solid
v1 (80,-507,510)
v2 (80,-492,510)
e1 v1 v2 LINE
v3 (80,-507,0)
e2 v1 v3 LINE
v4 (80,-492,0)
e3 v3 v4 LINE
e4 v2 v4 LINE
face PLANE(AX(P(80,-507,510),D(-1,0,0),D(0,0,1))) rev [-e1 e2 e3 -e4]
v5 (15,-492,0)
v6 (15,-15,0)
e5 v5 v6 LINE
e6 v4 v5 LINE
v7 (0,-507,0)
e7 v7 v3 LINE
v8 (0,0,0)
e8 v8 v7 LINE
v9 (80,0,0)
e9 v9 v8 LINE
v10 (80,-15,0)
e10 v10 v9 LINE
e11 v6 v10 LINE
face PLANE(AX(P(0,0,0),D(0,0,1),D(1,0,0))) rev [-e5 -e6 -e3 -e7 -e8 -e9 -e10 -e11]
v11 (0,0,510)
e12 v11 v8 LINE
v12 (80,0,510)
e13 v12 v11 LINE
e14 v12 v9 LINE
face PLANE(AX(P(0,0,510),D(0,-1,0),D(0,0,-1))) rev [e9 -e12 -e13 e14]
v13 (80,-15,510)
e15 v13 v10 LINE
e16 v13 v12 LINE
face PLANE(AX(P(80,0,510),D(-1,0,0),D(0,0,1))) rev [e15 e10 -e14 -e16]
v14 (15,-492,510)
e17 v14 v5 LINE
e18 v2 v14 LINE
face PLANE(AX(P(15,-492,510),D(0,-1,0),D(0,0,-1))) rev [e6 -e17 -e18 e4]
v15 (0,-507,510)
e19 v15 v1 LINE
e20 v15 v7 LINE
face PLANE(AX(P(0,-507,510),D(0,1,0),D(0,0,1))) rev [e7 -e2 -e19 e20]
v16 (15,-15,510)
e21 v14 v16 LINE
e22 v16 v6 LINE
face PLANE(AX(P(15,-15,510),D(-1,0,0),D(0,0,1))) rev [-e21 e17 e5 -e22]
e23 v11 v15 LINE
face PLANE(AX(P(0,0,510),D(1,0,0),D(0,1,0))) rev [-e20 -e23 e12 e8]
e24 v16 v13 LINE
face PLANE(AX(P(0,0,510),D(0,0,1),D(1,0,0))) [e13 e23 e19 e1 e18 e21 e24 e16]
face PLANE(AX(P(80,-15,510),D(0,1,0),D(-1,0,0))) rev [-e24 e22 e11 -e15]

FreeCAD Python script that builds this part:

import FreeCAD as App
import Part
import Sketcher

doc = App.newDocument("Part")
body = doc.addObject("PartDesign::Body", "Body")

sketch1 = body.newObject("Sketcher::SketchObject", "Sketch")
sketch1.AttachmentSupport = (doc.getObject("XY_Plane"), [""])
sketch1.MapMode = "FlatFace"
sketch1.addGeometry(Part.LineSegment(App.Vector(80, 0, 0), App.Vector(0, 0, 0)), False)
sketch1.addGeometry(Part.LineSegment(App.Vector(0, 0, 0), App.Vector(0, -507, 0)), False)
sketch1.addGeometry(Part.LineSegment(App.Vector(0, -507, 0), App.Vector(80, -507, 0)), False)
sketch1.addGeometry(Part.LineSegment(App.Vector(80, -507, 0), App.Vector(80, -492, 0)), False)
sketch1.addGeometry(Part.LineSegment(App.Vector(80, -492, 0), App.Vector(15, -492, 0)), False)
sketch1.addGeometry(Part.LineSegment(App.Vector(15, -492, 0), App.Vector(15, -15, 0)), False)
sketch1.addGeometry(Part.LineSegment(App.Vector(15, -15, 0), App.Vector(80, -15, 0)), False)
sketch1.addGeometry(Part.LineSegment(App.Vector(80, -15, 0), App.Vector(80, 0, 0)), False)
sketch1.addConstraint(Sketcher.Constraint("Coincident", 0, 2, 1, 1))
sketch1.addConstraint(Sketcher.Constraint("Coincident", 1, 2, 2, 1))
sketch1.addConstraint(Sketcher.Constraint("Coincident", 2, 2, 3, 1))
sketch1.addConstraint(Sketcher.Constraint("Coincident", 3, 2, 4, 1))
sketch1.addConstraint(Sketcher.Constraint("Coincident", 4, 2, 5, 1))
sketch1.addConstraint(Sketcher.Constraint("Coincident", 5, 2, 6, 1))
sketch1.addConstraint(Sketcher.Constraint("Coincident", 6, 2, 7, 1))
sketch1.addConstraint(Sketcher.Constraint("Coincident", 7, 2, 0, 1))
sketch1.addConstraint(Sketcher.Constraint("Horizontal", 0))
sketch1.addConstraint(Sketcher.Constraint("Vertical", 1))
sketch1.addConstraint(Sketcher.Constraint("Horizontal", 2))
sketch1.addConstraint(Sketcher.Constraint("Vertical", 3))
sketch1.addConstraint(Sketcher.Constraint("Horizontal", 4))
sketch1.addConstraint(Sketcher.Constraint("Vertical", 5))
sketch1.addConstraint(Sketcher.Constraint("Horizontal", 6))
sketch1.addConstraint(Sketcher.Constraint("Vertical", 7))
sketch1.addConstraint(Sketcher.Constraint("Coincident", 0, 2, -1, 1))
sketch1.addConstraint(Sketcher.Constraint("Vertical", 3, 2, 6, 2))
sketch1.addConstraint(Sketcher.Constraint("Equal", 3, 7))
sketch1.addConstraint(Sketcher.Constraint("DistanceX", 0, 2, 0, 1, 80.0))
sketch1.addConstraint(Sketcher.Constraint("DistanceX", 4, 2, 4, 1, 65.0))
sketch1.addConstraint(Sketcher.Constraint("DistanceY", 1, 2, 1, 1, 507.0))
sketch1.addConstraint(Sketcher.Constraint("DistanceY", 3, 1, 3, 2, 15.0))
pad1 = body.newObject("PartDesign::Pad", "Pad")
pad1.Profile = sketch1
pad1.Length = 510

doc.recompute()
